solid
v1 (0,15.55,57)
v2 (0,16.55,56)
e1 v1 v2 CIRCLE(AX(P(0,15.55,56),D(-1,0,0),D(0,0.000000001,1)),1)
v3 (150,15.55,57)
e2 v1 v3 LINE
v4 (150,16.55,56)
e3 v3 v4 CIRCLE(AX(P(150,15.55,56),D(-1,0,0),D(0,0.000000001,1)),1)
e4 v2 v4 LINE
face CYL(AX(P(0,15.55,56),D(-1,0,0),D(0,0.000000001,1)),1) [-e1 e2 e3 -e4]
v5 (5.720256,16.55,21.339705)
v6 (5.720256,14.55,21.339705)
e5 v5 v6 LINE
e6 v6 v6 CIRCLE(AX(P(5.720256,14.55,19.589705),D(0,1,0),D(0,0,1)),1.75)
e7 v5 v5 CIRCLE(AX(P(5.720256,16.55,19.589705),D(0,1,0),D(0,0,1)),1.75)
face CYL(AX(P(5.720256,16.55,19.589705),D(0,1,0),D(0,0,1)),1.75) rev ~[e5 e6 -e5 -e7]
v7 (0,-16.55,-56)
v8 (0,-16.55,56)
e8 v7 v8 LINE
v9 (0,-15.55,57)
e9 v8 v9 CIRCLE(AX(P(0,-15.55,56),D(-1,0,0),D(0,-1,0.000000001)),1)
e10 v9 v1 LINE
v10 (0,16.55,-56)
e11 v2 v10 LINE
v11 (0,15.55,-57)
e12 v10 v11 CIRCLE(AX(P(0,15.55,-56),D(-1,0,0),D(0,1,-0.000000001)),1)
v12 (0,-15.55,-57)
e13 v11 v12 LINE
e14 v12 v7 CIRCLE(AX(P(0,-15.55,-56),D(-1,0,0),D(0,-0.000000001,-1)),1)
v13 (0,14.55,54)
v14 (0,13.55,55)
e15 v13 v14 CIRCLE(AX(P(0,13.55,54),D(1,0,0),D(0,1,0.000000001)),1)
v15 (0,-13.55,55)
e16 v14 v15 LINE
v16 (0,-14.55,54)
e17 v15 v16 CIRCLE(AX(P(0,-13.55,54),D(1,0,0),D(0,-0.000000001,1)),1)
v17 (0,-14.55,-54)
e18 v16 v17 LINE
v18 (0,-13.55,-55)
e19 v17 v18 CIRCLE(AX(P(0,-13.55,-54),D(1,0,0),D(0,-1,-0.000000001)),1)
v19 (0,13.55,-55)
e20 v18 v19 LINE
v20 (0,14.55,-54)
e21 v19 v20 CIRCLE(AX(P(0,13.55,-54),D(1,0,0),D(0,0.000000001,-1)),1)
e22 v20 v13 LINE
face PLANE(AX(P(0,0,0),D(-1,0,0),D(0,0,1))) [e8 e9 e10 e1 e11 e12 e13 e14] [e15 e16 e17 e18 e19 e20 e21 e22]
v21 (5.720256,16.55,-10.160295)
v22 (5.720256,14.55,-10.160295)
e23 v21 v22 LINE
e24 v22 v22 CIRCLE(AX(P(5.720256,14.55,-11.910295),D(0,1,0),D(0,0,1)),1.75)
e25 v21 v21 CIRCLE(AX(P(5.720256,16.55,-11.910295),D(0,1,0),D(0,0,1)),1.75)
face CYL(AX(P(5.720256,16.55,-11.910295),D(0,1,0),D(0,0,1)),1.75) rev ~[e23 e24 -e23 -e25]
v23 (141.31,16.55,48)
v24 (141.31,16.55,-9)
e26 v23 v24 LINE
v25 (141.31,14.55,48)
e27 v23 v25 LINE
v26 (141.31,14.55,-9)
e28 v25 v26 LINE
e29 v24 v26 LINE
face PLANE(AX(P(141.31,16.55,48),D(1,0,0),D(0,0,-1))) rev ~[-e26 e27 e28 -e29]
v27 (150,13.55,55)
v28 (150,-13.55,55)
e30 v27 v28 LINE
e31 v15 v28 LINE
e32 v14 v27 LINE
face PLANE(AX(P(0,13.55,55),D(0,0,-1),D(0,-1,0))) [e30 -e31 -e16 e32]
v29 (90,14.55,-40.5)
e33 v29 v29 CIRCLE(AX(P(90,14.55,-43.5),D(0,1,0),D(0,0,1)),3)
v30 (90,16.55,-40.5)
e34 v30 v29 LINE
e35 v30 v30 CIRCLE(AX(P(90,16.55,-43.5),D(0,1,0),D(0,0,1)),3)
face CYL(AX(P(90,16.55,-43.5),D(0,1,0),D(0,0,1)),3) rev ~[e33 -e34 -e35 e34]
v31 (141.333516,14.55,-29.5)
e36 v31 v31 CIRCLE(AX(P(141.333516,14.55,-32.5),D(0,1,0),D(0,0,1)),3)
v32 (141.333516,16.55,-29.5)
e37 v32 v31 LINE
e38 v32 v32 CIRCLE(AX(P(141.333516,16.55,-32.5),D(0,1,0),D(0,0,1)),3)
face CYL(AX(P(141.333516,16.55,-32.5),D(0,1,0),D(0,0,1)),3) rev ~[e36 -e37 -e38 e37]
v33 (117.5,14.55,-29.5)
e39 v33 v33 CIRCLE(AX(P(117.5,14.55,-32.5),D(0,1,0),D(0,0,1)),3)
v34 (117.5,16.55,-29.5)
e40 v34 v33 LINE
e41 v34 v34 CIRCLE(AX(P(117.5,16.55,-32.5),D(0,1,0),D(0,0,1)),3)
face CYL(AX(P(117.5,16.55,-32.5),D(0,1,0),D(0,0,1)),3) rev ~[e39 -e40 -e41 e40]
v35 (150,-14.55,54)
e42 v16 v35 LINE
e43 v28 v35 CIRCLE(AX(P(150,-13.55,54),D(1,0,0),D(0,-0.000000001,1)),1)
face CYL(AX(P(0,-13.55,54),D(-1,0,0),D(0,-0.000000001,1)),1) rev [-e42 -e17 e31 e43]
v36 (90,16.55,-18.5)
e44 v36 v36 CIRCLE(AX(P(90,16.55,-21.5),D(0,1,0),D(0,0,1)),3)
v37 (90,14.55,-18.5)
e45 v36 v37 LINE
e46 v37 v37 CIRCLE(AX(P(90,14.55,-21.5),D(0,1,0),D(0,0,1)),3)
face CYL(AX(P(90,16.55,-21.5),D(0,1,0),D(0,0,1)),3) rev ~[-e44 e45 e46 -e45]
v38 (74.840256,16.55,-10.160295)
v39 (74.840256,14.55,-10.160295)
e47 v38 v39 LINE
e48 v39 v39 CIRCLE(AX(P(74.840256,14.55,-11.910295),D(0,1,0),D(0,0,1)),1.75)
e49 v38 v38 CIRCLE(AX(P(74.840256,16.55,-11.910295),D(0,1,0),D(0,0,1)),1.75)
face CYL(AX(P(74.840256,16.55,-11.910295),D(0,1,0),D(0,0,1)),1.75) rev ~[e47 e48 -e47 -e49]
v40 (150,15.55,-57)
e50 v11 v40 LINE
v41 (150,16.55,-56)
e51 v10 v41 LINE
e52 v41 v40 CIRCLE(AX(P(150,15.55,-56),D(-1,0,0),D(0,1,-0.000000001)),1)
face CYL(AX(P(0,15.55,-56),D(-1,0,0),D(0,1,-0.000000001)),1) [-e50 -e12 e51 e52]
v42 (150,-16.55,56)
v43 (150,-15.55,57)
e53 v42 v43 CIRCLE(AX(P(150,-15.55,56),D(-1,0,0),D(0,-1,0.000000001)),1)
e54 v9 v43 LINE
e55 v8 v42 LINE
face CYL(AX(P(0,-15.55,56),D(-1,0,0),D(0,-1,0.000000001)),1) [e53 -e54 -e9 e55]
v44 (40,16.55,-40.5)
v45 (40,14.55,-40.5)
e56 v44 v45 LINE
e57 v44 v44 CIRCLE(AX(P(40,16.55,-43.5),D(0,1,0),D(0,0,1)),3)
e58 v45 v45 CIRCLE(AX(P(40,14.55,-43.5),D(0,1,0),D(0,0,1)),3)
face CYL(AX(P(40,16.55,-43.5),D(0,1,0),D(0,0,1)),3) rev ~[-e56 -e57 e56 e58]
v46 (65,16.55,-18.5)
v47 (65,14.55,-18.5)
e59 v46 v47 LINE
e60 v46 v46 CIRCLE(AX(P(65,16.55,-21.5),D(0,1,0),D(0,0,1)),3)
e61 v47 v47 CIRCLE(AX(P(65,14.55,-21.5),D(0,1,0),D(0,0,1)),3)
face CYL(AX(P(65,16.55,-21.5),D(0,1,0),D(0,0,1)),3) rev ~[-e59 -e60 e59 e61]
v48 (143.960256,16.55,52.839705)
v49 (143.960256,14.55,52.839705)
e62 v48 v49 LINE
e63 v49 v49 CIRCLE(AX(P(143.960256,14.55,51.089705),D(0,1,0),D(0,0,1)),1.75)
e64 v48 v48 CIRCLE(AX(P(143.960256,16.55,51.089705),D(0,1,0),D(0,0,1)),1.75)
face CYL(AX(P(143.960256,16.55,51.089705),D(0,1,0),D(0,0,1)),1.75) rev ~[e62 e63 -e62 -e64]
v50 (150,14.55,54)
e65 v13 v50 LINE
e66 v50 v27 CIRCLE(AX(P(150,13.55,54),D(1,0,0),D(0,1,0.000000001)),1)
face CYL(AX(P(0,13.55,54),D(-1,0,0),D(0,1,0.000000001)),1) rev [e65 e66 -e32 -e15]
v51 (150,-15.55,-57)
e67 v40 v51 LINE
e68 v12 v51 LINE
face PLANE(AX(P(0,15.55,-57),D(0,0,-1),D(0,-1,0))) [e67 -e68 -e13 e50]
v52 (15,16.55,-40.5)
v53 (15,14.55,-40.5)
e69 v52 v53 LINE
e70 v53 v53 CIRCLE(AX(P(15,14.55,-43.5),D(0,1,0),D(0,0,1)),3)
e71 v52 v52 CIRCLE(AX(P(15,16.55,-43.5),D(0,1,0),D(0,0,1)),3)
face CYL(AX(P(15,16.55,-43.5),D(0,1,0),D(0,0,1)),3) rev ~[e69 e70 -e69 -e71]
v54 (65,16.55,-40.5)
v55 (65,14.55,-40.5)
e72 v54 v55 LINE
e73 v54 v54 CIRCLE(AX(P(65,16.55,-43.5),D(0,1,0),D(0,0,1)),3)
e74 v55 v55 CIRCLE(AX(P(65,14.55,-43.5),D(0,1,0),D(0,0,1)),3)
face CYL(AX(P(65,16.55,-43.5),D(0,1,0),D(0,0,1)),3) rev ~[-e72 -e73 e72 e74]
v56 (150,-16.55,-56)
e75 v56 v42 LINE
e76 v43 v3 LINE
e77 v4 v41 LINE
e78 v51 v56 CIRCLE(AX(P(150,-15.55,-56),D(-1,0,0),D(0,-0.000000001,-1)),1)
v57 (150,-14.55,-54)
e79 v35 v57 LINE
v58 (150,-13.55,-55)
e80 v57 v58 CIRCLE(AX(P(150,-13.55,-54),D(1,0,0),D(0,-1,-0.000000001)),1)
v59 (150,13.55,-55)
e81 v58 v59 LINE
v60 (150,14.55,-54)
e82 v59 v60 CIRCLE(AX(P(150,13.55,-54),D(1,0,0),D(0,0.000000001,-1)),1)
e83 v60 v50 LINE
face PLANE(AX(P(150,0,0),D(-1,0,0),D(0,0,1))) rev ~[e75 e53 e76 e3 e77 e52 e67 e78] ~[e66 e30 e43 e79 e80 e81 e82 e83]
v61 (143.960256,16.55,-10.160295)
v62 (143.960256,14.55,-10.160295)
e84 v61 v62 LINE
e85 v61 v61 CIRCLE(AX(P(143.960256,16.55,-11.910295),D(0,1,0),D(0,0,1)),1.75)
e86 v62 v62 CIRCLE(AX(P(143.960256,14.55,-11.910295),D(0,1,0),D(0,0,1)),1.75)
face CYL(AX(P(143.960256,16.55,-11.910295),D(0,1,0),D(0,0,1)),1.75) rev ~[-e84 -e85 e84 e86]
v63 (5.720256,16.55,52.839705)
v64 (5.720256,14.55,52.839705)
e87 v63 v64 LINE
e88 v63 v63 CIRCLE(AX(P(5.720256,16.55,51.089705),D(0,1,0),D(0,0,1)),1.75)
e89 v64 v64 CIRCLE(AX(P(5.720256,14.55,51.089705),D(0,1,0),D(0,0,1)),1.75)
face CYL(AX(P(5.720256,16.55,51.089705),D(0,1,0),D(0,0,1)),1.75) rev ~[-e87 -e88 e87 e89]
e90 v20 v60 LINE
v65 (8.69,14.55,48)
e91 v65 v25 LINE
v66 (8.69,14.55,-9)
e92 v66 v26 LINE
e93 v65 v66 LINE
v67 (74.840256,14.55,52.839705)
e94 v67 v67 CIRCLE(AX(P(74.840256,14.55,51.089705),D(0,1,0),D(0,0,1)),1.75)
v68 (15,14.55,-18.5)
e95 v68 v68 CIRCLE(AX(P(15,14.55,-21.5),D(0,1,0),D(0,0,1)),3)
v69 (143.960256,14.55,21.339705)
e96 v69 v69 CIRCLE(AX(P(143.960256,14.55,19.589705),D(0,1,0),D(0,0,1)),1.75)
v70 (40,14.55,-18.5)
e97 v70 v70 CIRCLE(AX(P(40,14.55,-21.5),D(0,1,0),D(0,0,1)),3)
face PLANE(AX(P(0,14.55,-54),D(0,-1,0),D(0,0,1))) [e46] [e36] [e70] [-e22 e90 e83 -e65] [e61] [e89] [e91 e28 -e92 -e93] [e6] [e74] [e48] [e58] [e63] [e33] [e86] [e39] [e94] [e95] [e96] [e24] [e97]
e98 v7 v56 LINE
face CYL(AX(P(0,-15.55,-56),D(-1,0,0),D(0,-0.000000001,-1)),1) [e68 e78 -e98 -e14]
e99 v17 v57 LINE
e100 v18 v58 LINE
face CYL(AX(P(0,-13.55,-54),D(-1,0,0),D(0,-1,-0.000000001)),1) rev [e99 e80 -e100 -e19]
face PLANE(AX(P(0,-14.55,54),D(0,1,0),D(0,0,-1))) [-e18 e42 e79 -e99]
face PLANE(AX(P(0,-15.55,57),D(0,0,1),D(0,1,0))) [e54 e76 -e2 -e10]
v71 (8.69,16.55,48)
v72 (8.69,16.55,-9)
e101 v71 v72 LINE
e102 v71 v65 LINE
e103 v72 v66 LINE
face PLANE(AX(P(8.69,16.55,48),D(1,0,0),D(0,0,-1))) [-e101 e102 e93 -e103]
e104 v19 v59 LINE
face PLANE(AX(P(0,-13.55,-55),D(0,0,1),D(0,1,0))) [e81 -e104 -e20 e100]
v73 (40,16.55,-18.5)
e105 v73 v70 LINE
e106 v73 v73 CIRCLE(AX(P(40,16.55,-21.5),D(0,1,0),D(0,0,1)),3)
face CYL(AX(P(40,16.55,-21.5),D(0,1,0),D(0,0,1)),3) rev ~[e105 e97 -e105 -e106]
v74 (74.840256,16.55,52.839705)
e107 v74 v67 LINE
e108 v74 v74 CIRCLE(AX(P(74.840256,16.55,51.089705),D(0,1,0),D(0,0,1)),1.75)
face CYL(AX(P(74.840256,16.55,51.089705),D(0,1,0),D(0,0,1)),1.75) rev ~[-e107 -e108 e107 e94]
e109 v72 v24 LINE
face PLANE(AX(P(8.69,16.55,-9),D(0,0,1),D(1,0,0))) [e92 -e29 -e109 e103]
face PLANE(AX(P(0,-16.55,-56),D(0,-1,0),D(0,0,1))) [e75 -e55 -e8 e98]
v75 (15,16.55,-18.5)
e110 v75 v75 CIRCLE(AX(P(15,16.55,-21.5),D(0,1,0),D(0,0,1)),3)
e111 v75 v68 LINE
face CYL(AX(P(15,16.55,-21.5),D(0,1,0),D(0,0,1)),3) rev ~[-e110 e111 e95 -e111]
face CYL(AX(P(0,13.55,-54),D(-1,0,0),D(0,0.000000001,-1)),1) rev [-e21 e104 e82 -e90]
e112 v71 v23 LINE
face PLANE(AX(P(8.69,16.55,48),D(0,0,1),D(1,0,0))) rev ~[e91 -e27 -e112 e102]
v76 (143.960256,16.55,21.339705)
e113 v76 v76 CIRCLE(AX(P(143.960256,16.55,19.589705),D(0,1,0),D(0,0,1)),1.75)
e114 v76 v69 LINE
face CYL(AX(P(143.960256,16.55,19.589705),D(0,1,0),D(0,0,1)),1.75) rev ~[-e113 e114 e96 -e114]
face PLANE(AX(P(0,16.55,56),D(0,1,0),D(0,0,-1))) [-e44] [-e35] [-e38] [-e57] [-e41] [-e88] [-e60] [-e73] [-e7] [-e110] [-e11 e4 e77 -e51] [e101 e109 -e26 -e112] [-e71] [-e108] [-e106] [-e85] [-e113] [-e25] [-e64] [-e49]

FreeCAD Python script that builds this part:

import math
import FreeCAD as App
import Part
import Sketcher
Q = App.Units.Quantity

doc = App.newDocument("Part")
body = doc.addObject("PartDesign::Body", "Body")

# Sketch on YZ plane
sketch1 = body.newObject("Sketcher::SketchObject", "Sketch")
sketch1.AttachmentSupport = (doc.getObject("YZ_Plane"), [""])
sketch1.MapMode = "FlatFace"
sketch1.addGeometry([
    Part.LineSegment(App.Vector(16.6, -56, 0), App.Vector(16.6, 56, 0)),  # 0
    Part.ArcOfCircle(Part.Circle(App.Vector(15.5, 56, 0), App.Vector(0, 0, 1), 1), math.radians(0), math.radians(90)),  # 1
    Part.LineSegment(App.Vector(15.6, 57, 0), App.Vector(-15.6, 57, 0)),  # 2
    Part.ArcOfCircle(Part.Circle(App.Vector(-15.5, 56, 0), App.Vector(0, 0, 1), 1), math.radians(90), math.radians(180)),  # 3
    Part.LineSegment(App.Vector(-16.6, 56, 0), App.Vector(-16.6, -56, 0)),  # 4
    Part.ArcOfCircle(Part.Circle(App.Vector(-15.5, -56, 0), App.Vector(0, 0, 1), 1), math.radians(-180), math.radians(-90)),  # 5
    Part.LineSegment(App.Vector(-15.6, -57, 0), App.Vector(15.6, -57, 0)),  # 6
    Part.ArcOfCircle(Part.Circle(App.Vector(15.5, -56, 0), App.Vector(0, 0, 1), 1), math.radians(-90), math.radians(0)),  # 7
], False)
sketch1.addConstraint([
    Sketcher.Constraint("Tangent", 0, 2, 1, 1),
    Sketcher.Constraint("Tangent", 1, 2, 2, 1),
    Sketcher.Constraint("Tangent", 2, 2, 3, 1),
    Sketcher.Constraint("Tangent", 3, 2, 4, 1),
    Sketcher.Constraint("Tangent", 4, 2, 5, 1),
    Sketcher.Constraint("Tangent", 5, 2, 6, 1),
    Sketcher.Constraint("Tangent", 6, 2, 7, 1),
    Sketcher.Constraint("Tangent", 7, 2, 0, 1),
    Sketcher.Constraint("Vertical", 0),
    Sketcher.Constraint("Horizontal", 2),
    Sketcher.Constraint("Vertical", 4),
    Sketcher.Constraint("Horizontal", 6),
    Sketcher.Constraint("Equal", 1, 3),
    Sketcher.Constraint("Equal", 3, 5),
    Sketcher.Constraint("Equal", 5, 7),
    Sketcher.Constraint("Symmetric", 1, 3, 5, 3, -1, 1),
    Sketcher.Constraint("Radius", 1, Q("1 mm")),
    Sketcher.Constraint("DistanceY", 0, 1, 0, 2, Q("112 mm")),
    Sketcher.Constraint("DistanceX", 2, 2, 2, 1, Q("31.1 mm")),
])
pad1 = body.newObject("PartDesign::Pad", "Pad")
pad1.Profile = sketch1
pad1.Length = 150

# Sketch on YZ plane
sketch2 = body.newObject("Sketcher::SketchObject", "Sketch001")
sketch2.AttachmentSupport = (doc.getObject("YZ_Plane"), [""])
sketch2.MapMode = "FlatFace"
sketch2.addGeometry([
    Part.LineSegment(App.Vector(-14.6, -54, 0), App.Vector(-14.6, 54, 0)),  # 0
    Part.ArcOfCircle(Part.Circle(App.Vector(-13.5, 54, 0), App.Vector(0, 0, 1), 1), math.radians(90), math.radians(180)),  # 1
    Part.LineSegment(App.Vector(-13.6, 55, 0), App.Vector(13.6, 55, 0)),  # 2
    Part.ArcOfCircle(Part.Circle(App.Vector(13.5, 54, 0), App.Vector(0, 0, 1), 1), math.radians(0), math.radians(90)),  # 3
    Part.LineSegment(App.Vector(14.6, 54, 0), App.Vector(14.6, -54, 0)),  # 4
    Part.ArcOfCircle(Part.Circle(App.Vector(13.5, -54, 0), App.Vector(0, 0, 1), 1), math.radians(-90), math.radians(0)),  # 5
    Part.LineSegment(App.Vector(13.6, -55, 0), App.Vector(-13.6, -55, 0)),  # 6
    Part.ArcOfCircle(Part.Circle(App.Vector(-13.5, -54, 0), App.Vector(0, 0, 1), 1), math.radians(-180), math.radians(-90)),  # 7
], False)
sketch2.addConstraint([
    Sketcher.Constraint("Tangent", 0, 2, 1, 2),
    Sketcher.Constraint("Tangent", 1, 1, 2, 1),
    Sketcher.Constraint("Tangent", 2, 2, 3, 2),
    Sketcher.Constraint("Tangent", 3, 1, 4, 1),
    Sketcher.Constraint("Tangent", 4, 2, 5, 2),
    Sketcher.Constraint("Tangent", 5, 1, 6, 1),
    Sketcher.Constraint("Tangent", 6, 2, 7, 2),
    Sketcher.Constraint("Tangent", 7, 1, 0, 1),
    Sketcher.Constraint("Vertical", 0),
    Sketcher.Constraint("Horizontal", 2),
    Sketcher.Constraint("Vertical", 4),
    Sketcher.Constraint("Horizontal", 6),
    Sketcher.Constraint("Equal", 1, 3),
    Sketcher.Constraint("Equal", 3, 5),
    Sketcher.Constraint("Equal", 5, 7),
    Sketcher.Constraint("Symmetric", 1, 3, 5, 3, -1, 1),
    Sketcher.Constraint("Radius", 1, Q("1 mm")),
    Sketcher.Constraint("DistanceY", 0, 1, 0, 2, Q("108 mm")),
    Sketcher.Constraint("DistanceX", 2, 1, 2, 2, Q("27.1 mm")),
])
pocket1 = body.newObject("PartDesign::Pocket", "Pocket")
pocket1.Profile = sketch2
pocket1.Length = 150
pocket1.Reversed = True

# Sketch on XZ plane
sketch3 = body.newObject("Sketcher::SketchObject", "Sketch002")
sketch3.AttachmentSupport = (doc.getObject("XZ_Plane"), [""])
sketch3.MapMode = "FlatFace"
sketch3.AttachmentOffset = App.Placement(App.Vector(0, 0, -16.55), App.Rotation())
sketch3.addGeometry([
    Part.LineSegment(App.Vector(9, -9, 0), App.Vector(9, 48, 0)),
    Part.LineSegment(App.Vector(9, 48, 0), App.Vector(141, 48, 0)),
    Part.LineSegment(App.Vector(141, 48, 0), App.Vector(141, -9, 0)),
    Part.LineSegment(App.Vector(141, -9, 0), App.Vector(9, -9, 0)),
], False)
sketch3.addConstraint([
    Sketcher.Constraint("Coincident", 0, 2, 1, 1),
    Sketcher.Constraint("Coincident", 1, 2, 2, 1),
    Sketcher.Constraint("Coincident", 2, 2, 3, 1),
    Sketcher.Constraint("Coincident", 3, 2, 0, 1),
    Sketcher.Constraint("Vertical", 0),
    Sketcher.Constraint("Horizontal", 1),
    Sketcher.Constraint("Vertical", 2),
    Sketcher.Constraint("Horizontal", 3),
    Sketcher.Constraint("DistanceY", 0, 1, 0, 2, Q("57 mm")),
    Sketcher.Constraint("DistanceY", -1, 1, 0, 2, Q("48 mm")),
    Sketcher.Constraint("DistanceX", 1, 1, 1, 2, Q("132.62 mm")),
    Sketcher.Constraint("DistanceX", -1, 1, 0, 2, Q("8.69 mm")),
])
pocket2 = body.newObject("PartDesign::Pocket", "Pocket001")
pocket2.Profile = sketch3
pocket2.Length = 2
pocket2.Reversed = True

# Sketch on XZ plane
sketch4 = body.newObject("Sketcher::SketchObject", "Sketch003")
sketch4.AttachmentSupport = (doc.getObject("XZ_Plane"), [""])
sketch4.MapMode = "FlatFace"
sketch4.AttachmentOffset = App.Placement(App.Vector(0, 0, -16.55), App.Rotation())
sketch4.addGeometry([
    Part.Circle(App.Vector(15, -43.5, 0), App.Vector(0, 0, 1), 3),  # 0
    Part.Circle(App.Vector(15, -21.5, 0), App.Vector(0, 0, 1), 3),  # 1
    Part.Circle(App.Vector(40, -43.5, 0), App.Vector(0, 0, 1), 3),  # 2
    Part.Circle(App.Vector(40, -21.5, 0), App.Vector(0, 0, 1), 3),  # 3
    Part.Circle(App.Vector(65, -43.5, 0), App.Vector(0, 0, 1), 3),  # 4
    Part.Circle(App.Vector(65, -21.5, 0), App.Vector(0, 0, 1), 3),  # 5
    Part.Circle(App.Vector(90, -43.5, 0), App.Vector(0, 0, 1), 3),  # 6
    Part.Circle(App.Vector(90, -21.5, 0), App.Vector(0, 0, 1), 3),  # 7
    Part.Circle(App.Vector(74.8, -11.9, 0), App.Vector(0, 0, 1), 1.8),  # 8
    Part.Circle(App.Vector(5.7, -11.9, 0), App.Vector(0, 0, 1), 1.8),  # 9
    Part.Circle(App.Vector(5.7, 19.6, 0), App.Vector(0, 0, 1), 1.8),  # 10
    Part.Circle(App.Vector(5.7, 51.1, 0), App.Vector(0, 0, 1), 1.8),  # 11
    Part.Circle(App.Vector(74.8, 51.1, 0), App.Vector(0, 0, 1), 1.8),  # 12
    Part.Circle(App.Vector(144, 51.1, 0), App.Vector(0, 0, 1), 1.8),  # 13
    Part.Circle(App.Vector(144, 19.6, 0), App.Vector(0, 0, 1), 1.8),  # 14
    Part.Circle(App.Vector(144, -11.9, 0), App.Vector(0, 0, 1), 1.8),  # 15
    Part.Circle(App.Vector(117.5, -32.5, 0), App.Vector(0, 0, 1), 3),  # 16
    Part.Circle(App.Vector(141.3, -32.5, 0), App.Vector(0, 0, 1), 3),  # 17
], False)
sketch4.addConstraint([
    Sketcher.Constraint("Equal", 0, 1),
    Sketcher.Constraint("Equal", 1, 2),
    Sketcher.Constraint("Equal", 2, 3),
    Sketcher.Constraint("Equal", 3, 4),
    Sketcher.Constraint("Equal", 4, 5),
    Sketcher.Constraint("Equal", 5, 6),
    Sketcher.Constraint("Equal", 6, 7),
    Sketcher.Constraint("Equal", 8, 9),
    Sketcher.Constraint("Equal", 9, 10),
    Sketcher.Constraint("Equal", 10, 11),
    Sketcher.Constraint("Equal", 11, 12),
    Sketcher.Constraint("Equal", 12, 13),
    Sketcher.Constraint("Equal", 13, 14),
    Sketcher.Constraint("Equal", 14, 15),
    Sketcher.Constraint("Equal", 7, 16),
    Sketcher.Constraint("Equal", 16, 17),
    Sketcher.Constraint("Horizontal", 0, 3, 2, 3),
    Sketcher.Constraint("Horizontal", 1, 3, 3, 3),
    Sketcher.Constraint("Horizontal", 2, 3, 4, 3),
    Sketcher.Constraint("Horizontal", 3, 3, 5, 3),
    Sketcher.Constraint("Horizontal", 4, 3, 6, 3),
    Sketcher.Constraint("Horizontal", 5, 3, 7, 3),
    Sketcher.Constraint("Horizontal", 8, 3, 9, 3),
    Sketcher.Constraint("Horizontal", 11, 3, 12, 3),
    Sketcher.Constraint("Horizontal", 12, 3, 13, 3),
    Sketcher.Constraint("Horizontal", 10, 3, 14, 3),
    Sketcher.Constraint("Horizontal", 9, 3, 15, 3),
    Sketcher.Constraint("Horizontal", 16, 3, 17, 3),
    Sketcher.Constraint("Vertical", 0, 3, 1, 3),
    Sketcher.Constraint("Vertical", 2, 3, 3, 3),
    Sketcher.Constraint("Vertical", 4, 3, 5, 3),
    Sketcher.Constraint("Vertical", 6, 3, 7, 3),
    Sketcher.Constraint("Vertical", 9, 3, 10, 3),
    Sketcher.Constraint("Vertical", 10, 3, 11, 3),
    Sketcher.Constraint("Vertical", 8, 3, 12, 3),
    Sketcher.Constraint("Vertical", 13, 3, 14, 3),
    Sketcher.Constraint("Vertical", 14, 3, 15, 3),
    Sketcher.Constraint("Diameter", 0, Q("6 mm")),
    Sketcher.Constraint("Diameter", 8, Q("3.5 mm")),
    Sketcher.Constraint("DistanceX", -1, 1, 0, 3, Q("15 mm")),
    Sketcher.Constraint("DistanceX", -1, 1, 2, 3, Q("40 mm")),
    Sketcher.Constraint("DistanceX", -1, 1, 4, 3, Q("65 mm")),
    Sketcher.Constraint("DistanceX", -1, 1, 6, 3, Q("90 mm")),
    Sketcher.Constraint("DistanceY", 0, 3, 1, 3, Q("22 mm")),
    Sketcher.Constraint("DistanceY", 9, 3, 11, 3, Q("63 mm")),
    Sketcher.Constraint("DistanceY", 6, 3, 16, 3, Q("11 mm")),
    Sketcher.Constraint("DistanceY", 0, 3, -1, 1, Q("43.5 mm")),
    Sketcher.Constraint("DistanceX", -1, 1, 16, 3, Q("117.5 mm")),
    Sketcher.Constraint("DistanceY", 9, 3, 10, 3, Q("31.5 mm")),
    Sketcher.Constraint("DistanceX", 11, 3, 8, 3, Q("69.12 mm")),
    Sketcher.Constraint("DistanceX", 12, 3, 13, 3, Q("69.12 mm")),
    Sketcher.Constraint("DistanceX", 17, 3, 15, 3, Q("2.626739 mm")),
    Sketcher.Constraint("DistanceX", -1, 1, 8, 3, Q("74.840256 mm")),
    Sketcher.Constraint("DistanceY", 8, 3, -1, 1, Q("11.910295 mm")),
])
pocket3 = body.newObject("PartDesign::Pocket", "Pocket002")
pocket3.Profile = sketch4
pocket3.Length = 10
pocket3.Reversed = True

doc.recompute()
